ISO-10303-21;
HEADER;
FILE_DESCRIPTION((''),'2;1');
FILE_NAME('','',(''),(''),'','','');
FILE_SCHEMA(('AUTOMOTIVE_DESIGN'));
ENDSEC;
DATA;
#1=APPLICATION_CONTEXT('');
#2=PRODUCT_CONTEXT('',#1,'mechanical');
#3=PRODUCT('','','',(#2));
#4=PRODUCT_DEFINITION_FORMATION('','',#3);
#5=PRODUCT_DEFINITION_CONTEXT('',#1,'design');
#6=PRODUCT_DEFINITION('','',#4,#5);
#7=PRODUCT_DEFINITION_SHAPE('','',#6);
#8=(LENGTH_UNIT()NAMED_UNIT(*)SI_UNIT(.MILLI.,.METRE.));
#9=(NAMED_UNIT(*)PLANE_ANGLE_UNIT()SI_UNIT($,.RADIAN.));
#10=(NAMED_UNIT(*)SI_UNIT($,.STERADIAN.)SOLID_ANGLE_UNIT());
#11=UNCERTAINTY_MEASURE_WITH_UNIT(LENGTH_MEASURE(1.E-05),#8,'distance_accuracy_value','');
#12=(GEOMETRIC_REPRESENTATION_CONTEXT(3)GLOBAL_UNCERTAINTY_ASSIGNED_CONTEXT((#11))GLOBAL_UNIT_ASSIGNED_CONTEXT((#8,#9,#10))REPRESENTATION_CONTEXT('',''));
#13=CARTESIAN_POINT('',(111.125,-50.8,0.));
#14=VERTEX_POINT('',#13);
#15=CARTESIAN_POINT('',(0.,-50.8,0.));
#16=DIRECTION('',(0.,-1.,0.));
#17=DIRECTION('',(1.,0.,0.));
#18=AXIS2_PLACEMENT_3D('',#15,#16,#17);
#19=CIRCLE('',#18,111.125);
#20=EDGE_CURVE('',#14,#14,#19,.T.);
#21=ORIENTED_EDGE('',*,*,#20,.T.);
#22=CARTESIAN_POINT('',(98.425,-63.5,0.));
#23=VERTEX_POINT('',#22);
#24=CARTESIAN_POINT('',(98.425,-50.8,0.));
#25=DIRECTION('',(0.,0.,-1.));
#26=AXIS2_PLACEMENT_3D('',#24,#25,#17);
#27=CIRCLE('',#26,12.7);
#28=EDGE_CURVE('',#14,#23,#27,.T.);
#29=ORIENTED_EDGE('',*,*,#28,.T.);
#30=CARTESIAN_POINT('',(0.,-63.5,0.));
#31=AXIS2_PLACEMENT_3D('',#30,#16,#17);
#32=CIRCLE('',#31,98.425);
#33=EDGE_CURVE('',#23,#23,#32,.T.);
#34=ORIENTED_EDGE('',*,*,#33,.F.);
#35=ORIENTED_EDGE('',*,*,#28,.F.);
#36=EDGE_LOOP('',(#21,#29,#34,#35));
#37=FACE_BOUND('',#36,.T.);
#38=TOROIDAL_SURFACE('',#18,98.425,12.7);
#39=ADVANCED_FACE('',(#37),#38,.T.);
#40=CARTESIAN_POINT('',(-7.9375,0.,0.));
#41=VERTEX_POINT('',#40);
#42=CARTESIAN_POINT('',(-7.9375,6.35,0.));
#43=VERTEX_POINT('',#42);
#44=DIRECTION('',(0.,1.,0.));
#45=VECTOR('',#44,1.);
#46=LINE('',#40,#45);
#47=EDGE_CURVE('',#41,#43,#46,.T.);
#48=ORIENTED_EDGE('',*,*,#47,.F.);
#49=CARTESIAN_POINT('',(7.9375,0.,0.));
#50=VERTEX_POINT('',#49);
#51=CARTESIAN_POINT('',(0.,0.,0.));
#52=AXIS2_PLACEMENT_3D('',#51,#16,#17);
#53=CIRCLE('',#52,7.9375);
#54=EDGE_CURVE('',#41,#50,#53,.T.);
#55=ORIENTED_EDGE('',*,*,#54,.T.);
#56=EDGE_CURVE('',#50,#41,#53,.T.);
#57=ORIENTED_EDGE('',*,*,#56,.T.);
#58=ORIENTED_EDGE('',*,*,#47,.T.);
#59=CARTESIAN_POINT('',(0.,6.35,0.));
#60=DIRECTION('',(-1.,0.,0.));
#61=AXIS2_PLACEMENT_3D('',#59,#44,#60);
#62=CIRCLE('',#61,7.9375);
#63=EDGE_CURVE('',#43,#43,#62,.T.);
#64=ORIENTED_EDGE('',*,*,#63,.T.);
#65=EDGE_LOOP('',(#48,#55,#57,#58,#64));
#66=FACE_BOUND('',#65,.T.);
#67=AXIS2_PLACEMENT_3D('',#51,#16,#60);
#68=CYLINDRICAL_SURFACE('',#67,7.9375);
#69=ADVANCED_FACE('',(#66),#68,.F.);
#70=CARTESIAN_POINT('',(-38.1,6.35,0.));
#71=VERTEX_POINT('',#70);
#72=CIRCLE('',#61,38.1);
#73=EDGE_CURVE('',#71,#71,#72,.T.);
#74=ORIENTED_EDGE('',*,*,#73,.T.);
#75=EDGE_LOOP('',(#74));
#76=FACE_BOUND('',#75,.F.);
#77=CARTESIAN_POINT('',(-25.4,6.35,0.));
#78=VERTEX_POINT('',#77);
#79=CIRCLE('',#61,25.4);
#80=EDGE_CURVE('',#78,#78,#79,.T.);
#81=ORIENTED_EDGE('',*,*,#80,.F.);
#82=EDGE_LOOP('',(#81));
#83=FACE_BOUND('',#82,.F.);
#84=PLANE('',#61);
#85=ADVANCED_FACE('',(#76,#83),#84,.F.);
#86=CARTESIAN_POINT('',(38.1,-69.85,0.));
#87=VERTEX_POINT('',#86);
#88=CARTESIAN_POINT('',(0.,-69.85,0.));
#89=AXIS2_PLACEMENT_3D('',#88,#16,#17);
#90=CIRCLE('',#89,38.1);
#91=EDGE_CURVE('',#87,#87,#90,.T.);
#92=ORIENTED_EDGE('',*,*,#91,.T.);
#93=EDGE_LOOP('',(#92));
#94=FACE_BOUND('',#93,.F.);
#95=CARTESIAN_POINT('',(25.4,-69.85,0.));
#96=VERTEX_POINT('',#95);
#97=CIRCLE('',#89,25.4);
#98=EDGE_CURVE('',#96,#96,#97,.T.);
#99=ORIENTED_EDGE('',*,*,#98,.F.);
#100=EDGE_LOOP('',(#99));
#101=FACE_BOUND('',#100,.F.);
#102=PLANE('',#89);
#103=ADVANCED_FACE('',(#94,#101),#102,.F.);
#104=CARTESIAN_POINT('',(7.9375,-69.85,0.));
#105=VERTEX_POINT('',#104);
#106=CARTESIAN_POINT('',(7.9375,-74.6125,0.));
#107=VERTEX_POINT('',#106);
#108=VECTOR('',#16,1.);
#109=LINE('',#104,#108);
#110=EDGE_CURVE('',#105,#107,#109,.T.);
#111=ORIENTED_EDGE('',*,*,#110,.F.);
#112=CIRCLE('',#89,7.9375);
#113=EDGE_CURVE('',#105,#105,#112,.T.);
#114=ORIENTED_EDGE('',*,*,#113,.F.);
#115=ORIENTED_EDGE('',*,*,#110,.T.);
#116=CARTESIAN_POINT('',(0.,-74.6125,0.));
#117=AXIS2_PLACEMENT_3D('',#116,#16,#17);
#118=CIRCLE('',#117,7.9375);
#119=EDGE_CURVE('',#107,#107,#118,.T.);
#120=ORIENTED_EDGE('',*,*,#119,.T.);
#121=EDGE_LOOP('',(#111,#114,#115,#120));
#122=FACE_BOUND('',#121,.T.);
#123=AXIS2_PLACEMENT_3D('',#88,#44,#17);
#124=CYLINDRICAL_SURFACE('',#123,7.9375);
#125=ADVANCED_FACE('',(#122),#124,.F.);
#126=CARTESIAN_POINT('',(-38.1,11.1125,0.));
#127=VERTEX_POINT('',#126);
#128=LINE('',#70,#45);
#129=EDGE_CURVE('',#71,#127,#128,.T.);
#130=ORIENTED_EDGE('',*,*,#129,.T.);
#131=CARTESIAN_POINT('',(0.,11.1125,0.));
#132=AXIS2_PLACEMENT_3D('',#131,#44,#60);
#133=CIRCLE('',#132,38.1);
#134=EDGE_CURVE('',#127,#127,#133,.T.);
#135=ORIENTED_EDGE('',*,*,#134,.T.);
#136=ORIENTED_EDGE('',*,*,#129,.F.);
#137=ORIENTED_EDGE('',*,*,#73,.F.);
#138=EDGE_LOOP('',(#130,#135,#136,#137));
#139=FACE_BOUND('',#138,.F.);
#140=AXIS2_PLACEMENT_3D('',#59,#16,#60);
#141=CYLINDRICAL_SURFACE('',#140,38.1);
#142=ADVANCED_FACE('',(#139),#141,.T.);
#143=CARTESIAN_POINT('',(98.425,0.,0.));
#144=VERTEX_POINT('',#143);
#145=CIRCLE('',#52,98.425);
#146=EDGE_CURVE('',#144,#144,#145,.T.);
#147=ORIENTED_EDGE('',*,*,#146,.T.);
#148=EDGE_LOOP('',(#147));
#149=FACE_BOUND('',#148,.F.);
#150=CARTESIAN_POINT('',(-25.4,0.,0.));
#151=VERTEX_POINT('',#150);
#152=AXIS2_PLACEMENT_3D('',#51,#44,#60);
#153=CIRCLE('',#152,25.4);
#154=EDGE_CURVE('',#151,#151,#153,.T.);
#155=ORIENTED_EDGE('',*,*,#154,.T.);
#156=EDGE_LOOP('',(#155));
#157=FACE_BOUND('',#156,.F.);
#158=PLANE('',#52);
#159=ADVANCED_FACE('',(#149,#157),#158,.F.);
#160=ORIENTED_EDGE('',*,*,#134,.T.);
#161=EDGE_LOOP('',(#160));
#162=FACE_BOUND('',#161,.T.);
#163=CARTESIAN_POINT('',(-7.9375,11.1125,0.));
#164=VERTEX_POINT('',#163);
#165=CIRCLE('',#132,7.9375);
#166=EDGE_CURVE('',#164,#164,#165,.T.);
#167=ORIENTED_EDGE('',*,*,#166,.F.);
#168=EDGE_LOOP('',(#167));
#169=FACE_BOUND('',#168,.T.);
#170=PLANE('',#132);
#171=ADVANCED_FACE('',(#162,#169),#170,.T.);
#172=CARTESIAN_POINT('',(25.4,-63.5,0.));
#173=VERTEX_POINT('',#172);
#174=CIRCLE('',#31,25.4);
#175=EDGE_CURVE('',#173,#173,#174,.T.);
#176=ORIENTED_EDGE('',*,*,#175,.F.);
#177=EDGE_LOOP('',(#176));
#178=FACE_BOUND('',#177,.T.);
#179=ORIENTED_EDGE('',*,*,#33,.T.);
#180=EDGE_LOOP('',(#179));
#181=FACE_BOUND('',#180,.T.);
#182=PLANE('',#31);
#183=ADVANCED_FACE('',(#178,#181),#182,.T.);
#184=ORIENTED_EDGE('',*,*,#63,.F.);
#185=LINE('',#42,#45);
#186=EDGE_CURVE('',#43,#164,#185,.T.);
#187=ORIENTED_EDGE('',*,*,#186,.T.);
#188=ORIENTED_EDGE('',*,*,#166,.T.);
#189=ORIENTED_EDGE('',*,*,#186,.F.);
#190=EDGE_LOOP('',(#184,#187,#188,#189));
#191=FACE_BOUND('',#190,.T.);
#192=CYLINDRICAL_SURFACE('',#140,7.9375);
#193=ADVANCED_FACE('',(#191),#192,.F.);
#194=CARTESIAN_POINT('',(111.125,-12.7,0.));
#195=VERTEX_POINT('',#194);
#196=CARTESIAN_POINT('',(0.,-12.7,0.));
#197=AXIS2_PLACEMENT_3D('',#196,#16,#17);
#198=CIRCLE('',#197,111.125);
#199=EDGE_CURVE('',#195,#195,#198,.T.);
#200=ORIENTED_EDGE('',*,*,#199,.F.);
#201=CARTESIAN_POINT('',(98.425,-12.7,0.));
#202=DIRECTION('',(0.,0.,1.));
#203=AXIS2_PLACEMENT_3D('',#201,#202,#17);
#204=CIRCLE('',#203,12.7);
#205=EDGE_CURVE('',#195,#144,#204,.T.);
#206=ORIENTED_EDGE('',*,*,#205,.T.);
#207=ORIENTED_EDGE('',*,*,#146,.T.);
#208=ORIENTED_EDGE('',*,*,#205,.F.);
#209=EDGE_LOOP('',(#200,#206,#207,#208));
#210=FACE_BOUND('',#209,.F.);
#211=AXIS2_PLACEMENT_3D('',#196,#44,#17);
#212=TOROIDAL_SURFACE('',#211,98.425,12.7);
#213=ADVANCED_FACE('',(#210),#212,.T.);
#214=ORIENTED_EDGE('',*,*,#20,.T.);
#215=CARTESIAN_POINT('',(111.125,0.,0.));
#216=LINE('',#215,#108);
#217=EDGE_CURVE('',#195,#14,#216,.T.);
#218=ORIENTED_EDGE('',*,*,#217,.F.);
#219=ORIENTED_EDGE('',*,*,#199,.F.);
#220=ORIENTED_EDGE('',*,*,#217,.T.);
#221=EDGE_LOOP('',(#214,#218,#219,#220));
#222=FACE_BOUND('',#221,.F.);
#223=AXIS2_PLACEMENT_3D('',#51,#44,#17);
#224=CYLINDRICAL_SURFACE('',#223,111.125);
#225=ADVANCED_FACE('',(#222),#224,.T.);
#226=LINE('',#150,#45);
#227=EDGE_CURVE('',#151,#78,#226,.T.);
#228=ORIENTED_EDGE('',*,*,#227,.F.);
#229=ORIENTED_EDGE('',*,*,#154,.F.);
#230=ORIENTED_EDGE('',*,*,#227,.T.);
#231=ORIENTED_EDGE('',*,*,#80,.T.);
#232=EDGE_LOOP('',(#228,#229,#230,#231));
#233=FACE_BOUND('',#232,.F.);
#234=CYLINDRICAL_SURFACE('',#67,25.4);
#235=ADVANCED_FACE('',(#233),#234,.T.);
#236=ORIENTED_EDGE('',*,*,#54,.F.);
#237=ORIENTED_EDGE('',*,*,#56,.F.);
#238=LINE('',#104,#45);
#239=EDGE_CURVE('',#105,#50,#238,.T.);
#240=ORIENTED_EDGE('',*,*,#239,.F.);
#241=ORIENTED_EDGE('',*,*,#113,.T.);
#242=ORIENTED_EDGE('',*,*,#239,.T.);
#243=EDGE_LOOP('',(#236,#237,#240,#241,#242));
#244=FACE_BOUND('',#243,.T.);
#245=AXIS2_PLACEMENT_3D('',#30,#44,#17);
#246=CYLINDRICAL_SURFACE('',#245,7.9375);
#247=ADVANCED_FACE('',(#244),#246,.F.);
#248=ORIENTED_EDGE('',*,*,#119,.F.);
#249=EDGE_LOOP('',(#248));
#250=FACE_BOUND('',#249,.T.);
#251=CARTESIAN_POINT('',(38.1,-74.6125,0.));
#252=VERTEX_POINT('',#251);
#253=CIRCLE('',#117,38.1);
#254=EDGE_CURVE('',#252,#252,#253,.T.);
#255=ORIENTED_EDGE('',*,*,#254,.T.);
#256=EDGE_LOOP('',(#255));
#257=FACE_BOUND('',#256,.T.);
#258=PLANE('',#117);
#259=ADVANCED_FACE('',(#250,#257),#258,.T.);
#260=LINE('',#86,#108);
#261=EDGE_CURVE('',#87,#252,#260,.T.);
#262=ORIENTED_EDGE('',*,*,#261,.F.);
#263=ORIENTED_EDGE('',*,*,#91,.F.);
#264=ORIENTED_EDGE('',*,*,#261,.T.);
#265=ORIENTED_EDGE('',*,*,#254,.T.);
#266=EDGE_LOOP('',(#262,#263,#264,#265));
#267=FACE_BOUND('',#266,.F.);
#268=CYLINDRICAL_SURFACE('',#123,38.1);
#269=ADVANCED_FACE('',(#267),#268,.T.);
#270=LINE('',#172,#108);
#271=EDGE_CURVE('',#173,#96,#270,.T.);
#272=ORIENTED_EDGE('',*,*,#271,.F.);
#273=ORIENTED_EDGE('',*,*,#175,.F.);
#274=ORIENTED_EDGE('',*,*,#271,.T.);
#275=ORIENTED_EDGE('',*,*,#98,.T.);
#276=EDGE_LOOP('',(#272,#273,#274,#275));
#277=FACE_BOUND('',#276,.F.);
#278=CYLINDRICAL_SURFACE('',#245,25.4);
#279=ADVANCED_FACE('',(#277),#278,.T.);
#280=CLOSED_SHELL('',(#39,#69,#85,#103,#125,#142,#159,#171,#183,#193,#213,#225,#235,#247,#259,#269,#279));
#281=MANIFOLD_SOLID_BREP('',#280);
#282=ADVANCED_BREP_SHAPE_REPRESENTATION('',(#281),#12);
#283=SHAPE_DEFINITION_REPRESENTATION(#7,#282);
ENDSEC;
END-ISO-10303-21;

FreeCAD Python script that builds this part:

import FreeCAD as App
import Part
import Sketcher
from FreeCAD import Vector
Q = App.Units.Quantity


def edges_at(feature, points):
    """Names of the edges that pass closest to the given points."""
    edges = feature.Shape.Edges
    near = lambda p: min(range(len(edges)), key=lambda i: edges[i].distToShape(Part.Vertex(*p))[0])
    return sorted({f"Edge{near(p) + 1}" for p in points})

doc = App.newDocument("Part")
body = doc.addObject("PartDesign::Body", "Body")

sketch1 = body.newObject("Sketcher::SketchObject", "Sketch")
sketch1.AttachmentSupport = (doc.getObject("XZ_Plane"), [""])
sketch1.MapMode = "FlatFace"
sketch1.addGeometry([
    Part.Circle(Vector(0, 0, 0), Vector(0, 0, 1), 111),
    Part.Circle(Vector(0, 0, 0), Vector(0, 0, 1), 8),
], False)
sketch1.addConstraint([
    Sketcher.Constraint("Coincident", 0, 3, -1, 1),
    Sketcher.Constraint("Coincident", 1, 3, -1, 1),
    Sketcher.Constraint("Diameter", 0, Q("8.75 in")),
    Sketcher.Constraint("Diameter", 1, Q("0.625 in")),
])
pad1 = body.newObject("PartDesign::Pad", "Pad")
pad1.Profile = sketch1
pad1.Length = Q("2.5 in")
doc.recompute()

fillet = body.newObject("PartDesign::Fillet", "Fillet")
fillet.Base = (pad1, edges_at(pad1, [(-111.125, -63.5, 0)]))
fillet.Radius = Q("0.5 in")
doc.recompute()

fillet2 = body.newObject("PartDesign::Fillet", "Fillet001")
fillet2.Base = (fillet, edges_at(fillet, [(-111.125, 0, 0)]))
fillet2.Radius = Q("0.5 in")

sketch2 = body.newObject("Sketcher::SketchObject", "Sketch001")
sketch2.AttachmentSupport = (doc.getObject("XZ_Plane"), [""])
sketch2.MapMode = "FlatFace"
sketch2.AttachmentOffset = App.Placement(Vector(0, 0, 2.5 * 25.4), App.Rotation())
sketch2.addGeometry([
    Part.Circle(Vector(0, 0, 0), Vector(0, 0, 1), 25),
    Part.Circle(Vector(0, 0, 0), Vector(0, 0, 1), 8),
], False)
sketch2.addConstraint([
    Sketcher.Constraint("Coincident", 0, 3, -1, 1),
    Sketcher.Constraint("Coincident", 1, 3, -1, 1),
    Sketcher.Constraint("Diameter", 0, Q("2 in")),
    Sketcher.Constraint("Diameter", 1, Q("0.625 in")),
])
pad2 = body.newObject("PartDesign::Pad", "Pad001")
pad2.Profile = sketch2
pad2.Length = Q("0.25 in")

sketch3 = body.newObject("Sketcher::SketchObject", "Sketch002")
sketch3.AttachmentSupport = (doc.getObject("XZ_Plane"), [""])
sketch3.MapMode = "FlatFace"
sketch3.addGeometry([
    Part.Circle(Vector(0, 0, 0), Vector(0, 0, 1), 25),
    Part.Circle(Vector(0, 0, 0), Vector(0, 0, 1), 8),
], False)
sketch3.addConstraint([
    Sketcher.Constraint("Coincident", 0, 3, -1, 1),
    Sketcher.Constraint("Coincident", 1, 3, -1, 1),
    Sketcher.Constraint("Diameter", 0, Q("2 in")),
    Sketcher.Constraint("Diameter", 1, Q("0.625 in")),
])
pad3 = body.newObject("PartDesign::Pad", "Pad002")
pad3.Profile = sketch3
pad3.Length = Q("0.25 in")
pad3.Reversed = True

sketch4 = body.newObject("Sketcher::SketchObject", "Sketch003")
sketch4.AttachmentSupport = (doc.getObject("XZ_Plane"), [""])
sketch4.MapMode = "FlatFace"
sketch4.AttachmentOffset = App.Placement(Vector(0, 0, 2.75 * 25.4), App.Rotation())
sketch4.addGeometry([
    Part.Circle(Vector(0, 0, 0), Vector(0, 0, 1), 38),
    Part.Circle(Vector(0, 0, 0), Vector(0, 0, 1), 8),
], False)
sketch4.addConstraint([
    Sketcher.Constraint("Coincident", 0, 3, -1, 1),
    Sketcher.Constraint("Coincident", 1, 3, -1, 1),
    Sketcher.Constraint("Diameter", 0, Q("3 in")),
    Sketcher.Constraint("Diameter", 1, Q("0.625 in")),
])
pad4 = body.newObject("PartDesign::Pad", "Pad003")
pad4.Profile = sketch4
pad4.Length = Q("0.1875 in")

sketch5 = body.newObject("Sketcher::SketchObject", "Sketch004")
sketch5.AttachmentSupport = (doc.getObject("XZ_Plane"), [""])
sketch5.MapMode = "FlatFace"
sketch5.AttachmentOffset = App.Placement(Vector(0, 0, -0.25 * 25.4), App.Rotation())
sketch5.addGeometry([
    Part.Circle(Vector(0, 0, 0), Vector(0, 0, 1), 38),
    Part.Circle(Vector(0, 0, 0), Vector(0, 0, 1), 8),
], False)
sketch5.addConstraint([
    Sketcher.Constraint("Coincident", 0, 3, -1, 1),
    Sketcher.Constraint("Coincident", 1, 3, -1, 1),
    Sketcher.Constraint("Diameter", 0, Q("3 in")),
    Sketcher.Constraint("Diameter", 1, Q("0.625 in")),
])
pad5 = body.newObject("PartDesign::Pad", "Pad004")
pad5.Profile = sketch5
pad5.Length = Q("0.1875 in")
pad5.Reversed = True
body2 = doc.addObject("PartDesign::Body", "Body001")

sketch6 = body2.newObject("Sketcher::SketchObject", "Sketch005")
sketch6.AttachmentSupport = (doc.getObject("XZ_Plane001"), [""])
sketch6.MapMode = "FlatFace"
sketch6.AttachmentOffset = App.Placement(Vector(0, 0, 2.75 * 25.4), App.Rotation())
sketch6.addGeometry([
    Part.Circle(Vector(0, 0, 0), Vector(0, 0, 1), 38),
    Part.Circle(Vector(0, 0, 0), Vector(0, 0, 1), 25),
], False)
sketch6.addConstraint([
    Sketcher.Constraint("Coincident", 0, 3, -1, 1),
    Sketcher.Constraint("Coincident", 1, 3, -1, 1),
    Sketcher.Constraint("Diameter", 0, Q("3 in")),
    Sketcher.Constraint("Diameter", 1, Q("2 in")),
])
pad6 = body2.newObject("PartDesign::Pad", "Pad005")
pad6.Profile = sketch6
pad6.Length = Q("0.1875 in")
body3 = doc.addObject("PartDesign::Body", "Body002")

sketch7 = body3.newObject("Sketcher::SketchObject", "Sketch006")
sketch7.AttachmentSupport = (doc.getObject("XZ_Plane002"), [""])
sketch7.MapMode = "FlatFace"
sketch7.AttachmentOffset = App.Placement(Vector(0, 0, -0.25 * 25.4), App.Rotation())
sketch7.addGeometry([
    Part.Circle(Vector(0, 0, 0), Vector(0, 0, 1), 38),
    Part.Circle(Vector(0, 0, 0), Vector(0, 0, 1), 25),
], False)
sketch7.addConstraint([
    Sketcher.Constraint("Coincident", 0, 3, -1, 1),
    Sketcher.Constraint("Coincident", 1, 3, -1, 1),
    Sketcher.Constraint("Diameter", 0, Q("3 in")),
    Sketcher.Constraint("Diameter", 1, Q("2 in")),
])
pad7 = body3.newObject("PartDesign::Pad", "Pad006")
pad7.Profile = sketch7
pad7.Length = Q("0.1875 in")
pad7.Reversed = True
body2.Visibility = False
body3.Visibility = False

doc.recompute()
